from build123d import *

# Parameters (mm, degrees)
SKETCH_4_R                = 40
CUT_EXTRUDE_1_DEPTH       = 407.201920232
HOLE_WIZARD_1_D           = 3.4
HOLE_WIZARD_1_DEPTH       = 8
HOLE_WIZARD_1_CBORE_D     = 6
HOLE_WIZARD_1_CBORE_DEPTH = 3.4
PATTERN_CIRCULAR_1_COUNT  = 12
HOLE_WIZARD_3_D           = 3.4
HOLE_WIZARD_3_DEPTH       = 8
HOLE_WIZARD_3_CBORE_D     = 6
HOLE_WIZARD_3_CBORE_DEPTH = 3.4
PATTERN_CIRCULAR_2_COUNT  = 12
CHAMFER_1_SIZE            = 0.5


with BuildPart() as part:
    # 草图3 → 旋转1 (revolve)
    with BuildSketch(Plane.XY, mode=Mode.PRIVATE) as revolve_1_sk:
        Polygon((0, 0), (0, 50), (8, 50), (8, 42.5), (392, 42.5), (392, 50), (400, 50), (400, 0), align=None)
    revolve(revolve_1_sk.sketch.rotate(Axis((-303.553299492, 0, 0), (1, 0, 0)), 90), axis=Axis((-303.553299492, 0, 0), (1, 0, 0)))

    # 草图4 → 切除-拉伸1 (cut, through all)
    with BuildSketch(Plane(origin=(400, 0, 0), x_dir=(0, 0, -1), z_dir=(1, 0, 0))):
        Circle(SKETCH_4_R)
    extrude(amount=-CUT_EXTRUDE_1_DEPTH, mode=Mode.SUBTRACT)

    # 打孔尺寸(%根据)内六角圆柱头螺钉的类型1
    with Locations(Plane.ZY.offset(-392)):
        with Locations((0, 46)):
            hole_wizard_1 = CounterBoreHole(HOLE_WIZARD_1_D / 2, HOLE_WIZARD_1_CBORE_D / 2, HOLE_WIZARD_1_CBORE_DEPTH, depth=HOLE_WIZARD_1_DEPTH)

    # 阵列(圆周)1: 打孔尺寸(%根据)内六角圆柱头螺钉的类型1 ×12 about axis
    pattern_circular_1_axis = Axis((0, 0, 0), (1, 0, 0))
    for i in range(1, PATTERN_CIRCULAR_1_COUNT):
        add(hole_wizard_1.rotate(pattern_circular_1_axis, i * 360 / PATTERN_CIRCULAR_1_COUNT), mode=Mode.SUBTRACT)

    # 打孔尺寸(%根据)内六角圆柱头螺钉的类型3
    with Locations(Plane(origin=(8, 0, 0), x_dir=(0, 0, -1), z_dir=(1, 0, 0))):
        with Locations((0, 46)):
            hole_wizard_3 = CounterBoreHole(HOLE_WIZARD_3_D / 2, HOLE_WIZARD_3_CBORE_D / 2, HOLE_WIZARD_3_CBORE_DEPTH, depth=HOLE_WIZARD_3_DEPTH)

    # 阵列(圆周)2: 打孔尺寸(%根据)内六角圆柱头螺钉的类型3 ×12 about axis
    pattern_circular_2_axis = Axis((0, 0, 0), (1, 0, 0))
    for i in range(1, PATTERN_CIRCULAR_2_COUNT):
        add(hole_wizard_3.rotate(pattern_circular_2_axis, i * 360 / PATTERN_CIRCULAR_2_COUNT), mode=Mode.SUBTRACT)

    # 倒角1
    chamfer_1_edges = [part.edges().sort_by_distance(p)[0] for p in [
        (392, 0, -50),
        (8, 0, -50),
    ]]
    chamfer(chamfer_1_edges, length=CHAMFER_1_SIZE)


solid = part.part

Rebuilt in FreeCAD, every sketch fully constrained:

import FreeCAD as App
import Part
import Sketcher
from FreeCAD import Vector
Q = App.Units.Quantity


def edges_at(feature, points):
    """Names of the edges that pass closest to the given points."""
    edges = feature.Shape.Edges
    near = lambda p: min(range(len(edges)), key=lambda i: edges[i].distToShape(Part.Vertex(*p))[0])
    return sorted({f"Edge{near(p) + 1}" for p in points})

doc = App.newDocument("Part")
params = doc.addObject("Spreadsheet::Sheet", "Params")
for row, (alias, value) in enumerate([
    ("sketch1_width", "400 mm"),
    ("sketch1_width2", "8 mm"),
    ("sketch1_height", "50 mm"),
    ("sketch1_height2", "7.5 mm"),
    ("revolution_angle", "360 deg"),
    ("sketch2_diameter", "80 mm"),
    ("sketch3_diameter", "3.4 mm"),
    ("hole_diameter", "3.4 mm"),
    ("hole_depth", "8 mm"),
    ("hole_cbore_diameter", "6 mm"),
    ("hole_cbore_depth", "3.4 mm"),
    ("sketch4_diameter", "3.4 mm"),
    ("hole2_diameter", "3.4 mm"),
    ("hole2_depth", "8 mm"),
    ("hole2_cbore_diameter", "6 mm"),
    ("hole2_cbore_depth", "3.4 mm"),
    ("chamfer_size", "0.5 mm"),
], start=1):
    params.set(f"A{row}", alias)
    params.set(f"B{row}", "=" + value)
    params.setAlias(f"B{row}", alias)

body = doc.addObject("PartDesign::Body", "Body")

# Sketch on XY plane
sketch1 = body.newObject("Sketcher::SketchObject", "Sketch")
sketch1.AttachmentSupport = (doc.getObject("XY_Plane"), [""])
sketch1.MapMode = "FlatFace"
sketch1.addGeometry(Part.LineSegment(Vector(0, 50, 0), Vector(0, 0, 0)), False)
sketch1.addGeometry(Part.LineSegment(Vector(0, 0, 0), Vector(400, 0, 0)), False)
sketch1.addGeometry(Part.LineSegment(Vector(400, 0, 0), Vector(400, 50, 0)), False)
sketch1.addGeometry(Part.LineSegment(Vector(400, 50, 0), Vector(392, 50, 0)), False)
sketch1.addGeometry(Part.LineSegment(Vector(392, 50, 0), Vector(392, 42.5, 0)), False)
sketch1.addGeometry(Part.LineSegment(Vector(392, 42.5, 0), Vector(8, 42.5, 0)), False)
sketch1.addGeometry(Part.LineSegment(Vector(8, 42.5, 0), Vector(8, 50, 0)), False)
sketch1.addGeometry(Part.LineSegment(Vector(8, 50, 0), Vector(0, 50, 0)), False)
sketch1.addConstraint(Sketcher.Constraint("Coincident", 0, 2, 1, 1))
sketch1.addConstraint(Sketcher.Constraint("Coincident", 1, 2, 2, 1))
sketch1.addConstraint(Sketcher.Constraint("Coincident", 2, 2, 3, 1))
sketch1.addConstraint(Sketcher.Constraint("Coincident", 3, 2, 4, 1))
sketch1.addConstraint(Sketcher.Constraint("Coincident", 4, 2, 5, 1))
sketch1.addConstraint(Sketcher.Constraint("Coincident", 5, 2, 6, 1))
sketch1.addConstraint(Sketcher.Constraint("Coincident", 6, 2, 7, 1))
sketch1.addConstraint(Sketcher.Constraint("Coincident", 7, 2, 0, 1))
sketch1.addConstraint(Sketcher.Constraint("Vertical", 0))
sketch1.addConstraint(Sketcher.Constraint("Horizontal", 1))
sketch1.addConstraint(Sketcher.Constraint("Vertical", 2))
sketch1.addConstraint(Sketcher.Constraint("Horizontal", 3))
sketch1.addConstraint(Sketcher.Constraint("Vertical", 4))
sketch1.addConstraint(Sketcher.Constraint("Horizontal", 5))
sketch1.addConstraint(Sketcher.Constraint("Vertical", 6))
sketch1.addConstraint(Sketcher.Constraint("Horizontal", 7))
sketch1.addConstraint(Sketcher.Constraint("Coincident", 0, 2, -1, 1))
sketch1.addConstraint(Sketcher.Constraint("Horizontal", 3, 2, 6, 2))
sketch1.addConstraint(Sketcher.Constraint("Equal", 3, 7))
sketch1.addConstraint(Sketcher.Constraint("DistanceX", 1, 1, 1, 2, Q("400 mm")))
sketch1.addConstraint(Sketcher.Constraint("DistanceX", 3, 2, 3, 1, Q("8 mm")))
sketch1.addConstraint(Sketcher.Constraint("DistanceY", 0, 2, 0, 1, Q("50 mm")))
sketch1.addConstraint(Sketcher.Constraint("DistanceY", 4, 2, 4, 1, Q("7.5 mm")))
sketch1.setExpression("Constraints[19]", "Params.sketch1_width")
sketch1.setExpression("Constraints[20]", "Params.sketch1_width2")
sketch1.setExpression("Constraints[21]", "Params.sketch1_height")
sketch1.setExpression("Constraints[22]", "Params.sketch1_height2")
revolution = body.newObject("PartDesign::Revolution", "Revolution")
revolution.Profile = sketch1
revolution.ReferenceAxis = (sketch1, ["H_Axis"])
revolution.setExpression("Angle", "Params.revolution_angle")

# Sketch on YZ plane
sketch2 = body.newObject("Sketcher::SketchObject", "Sketch001")
sketch2.AttachmentSupport = (doc.getObject("YZ_Plane"), [""])
sketch2.MapMode = "FlatFace"
sketch2.AttachmentOffset = App.Placement(Vector(0, 0, 400), App.Rotation())
sketch2.addGeometry(Part.Circle(Vector(0, 0, 0), Vector(0, 0, 1), 40), False)
sketch2.addConstraint(Sketcher.Constraint("Coincident", 0, 3, -1, 1))
sketch2.addConstraint(Sketcher.Constraint("Diameter", 0, Q("80 mm")))
sketch2.setExpression("Constraints[1]", "Params.sketch2_diameter")
pocket1 = body.newObject("PartDesign::Pocket", "Pocket")
pocket1.Profile = sketch2
pocket1.Type = "ThroughAll"

# Sketch on YZ plane
sketch3 = body.newObject("Sketcher::SketchObject", "Sketch002")
sketch3.AttachmentSupport = (doc.getObject("YZ_Plane"), [""])
sketch3.MapMode = "FlatFace"
sketch3.AttachmentOffset = App.Placement(Vector(0, 0, 392), App.Rotation())
sketch3.addGeometry(Part.Circle(Vector(46, 0, 0), Vector(0, 0, 1), 1.7), False)
sketch3.addConstraint(Sketcher.Constraint("PointOnObject", 0, 3, -1))
sketch3.addConstraint(Sketcher.Constraint("Diameter", 0, Q("3.4 mm")))
sketch3.addConstraint(Sketcher.Constraint("DistanceX", -1, 1, 0, 3, Q("46 mm")))
sketch3.setExpression("Constraints[1]", "Params.sketch3_diameter")
doc.recompute()
hole = body.newObject("PartDesign::Hole", "Hole")
hole.Profile = sketch3
hole.ThreadType = "None"
hole.setExpression("Diameter", "Params.hole_diameter")
hole.DepthType = "Dimension"
hole.setExpression("Depth", "Params.hole_depth")
hole.DrillPoint = "Flat"
hole.HoleCutType = "Counterbore"
hole.setExpression("HoleCutDiameter", "Params.hole_cbore_diameter")
hole.setExpression("HoleCutDepth", "Params.hole_cbore_depth")
hole.Reversed = True
doc.recompute()

polarpattern = body.newObject("PartDesign::PolarPattern", "PolarPattern")
polarpattern.Originals = [hole]
polarpattern.Axis = (doc.getObject("X_Axis"), [""])
polarpattern.Angle = 360
polarpattern.Occurrences = 12
body.Tip = polarpattern

# Sketch on YZ plane
sketch4 = body.newObject("Sketcher::SketchObject", "Sketch003")
sketch4.AttachmentSupport = (doc.getObject("YZ_Plane"), [""])
sketch4.MapMode = "FlatFace"
sketch4.AttachmentOffset = App.Placement(Vector(0, 0, 8), App.Rotation())
sketch4.addGeometry(Part.Circle(Vector(46, 0, 0), Vector(0, 0, 1), 1.7), False)
sketch4.addConstraint(Sketcher.Constraint("PointOnObject", 0, 3, -1))
sketch4.addConstraint(Sketcher.Constraint("Diameter", 0, Q("3.4 mm")))
sketch4.addConstraint(Sketcher.Constraint("DistanceX", -1, 1, 0, 3, Q("46 mm")))
sketch4.setExpression("Constraints[1]", "Params.sketch4_diameter")
doc.recompute()
hole2 = body.newObject("PartDesign::Hole", "Hole001")
hole2.Profile = sketch4
hole2.ThreadType = "None"
hole2.setExpression("Diameter", "Params.hole2_diameter")
hole2.DepthType = "Dimension"
hole2.setExpression("Depth", "Params.hole2_depth")
hole2.DrillPoint = "Flat"
hole2.HoleCutType = "Counterbore"
hole2.setExpression("HoleCutDiameter", "Params.hole2_cbore_diameter")
hole2.setExpression("HoleCutDepth", "Params.hole2_cbore_depth")
doc.recompute()

polarpattern2 = body.newObject("PartDesign::PolarPattern", "PolarPattern001")
polarpattern2.Originals = [hole2]
polarpattern2.Axis = (doc.getObject("X_Axis"), [""])
polarpattern2.Angle = 360
polarpattern2.Occurrences = 12
body.Tip = polarpattern2
doc.recompute()

chamfer = body.newObject("PartDesign::Chamfer", "Chamfer")
chamfer.Base = (polarpattern2, edges_at(polarpattern2, [(392, 0, -50), (8, 0, -50)]))
chamfer.setExpression("Size", "Params.chamfer_size")

doc.recompute()
